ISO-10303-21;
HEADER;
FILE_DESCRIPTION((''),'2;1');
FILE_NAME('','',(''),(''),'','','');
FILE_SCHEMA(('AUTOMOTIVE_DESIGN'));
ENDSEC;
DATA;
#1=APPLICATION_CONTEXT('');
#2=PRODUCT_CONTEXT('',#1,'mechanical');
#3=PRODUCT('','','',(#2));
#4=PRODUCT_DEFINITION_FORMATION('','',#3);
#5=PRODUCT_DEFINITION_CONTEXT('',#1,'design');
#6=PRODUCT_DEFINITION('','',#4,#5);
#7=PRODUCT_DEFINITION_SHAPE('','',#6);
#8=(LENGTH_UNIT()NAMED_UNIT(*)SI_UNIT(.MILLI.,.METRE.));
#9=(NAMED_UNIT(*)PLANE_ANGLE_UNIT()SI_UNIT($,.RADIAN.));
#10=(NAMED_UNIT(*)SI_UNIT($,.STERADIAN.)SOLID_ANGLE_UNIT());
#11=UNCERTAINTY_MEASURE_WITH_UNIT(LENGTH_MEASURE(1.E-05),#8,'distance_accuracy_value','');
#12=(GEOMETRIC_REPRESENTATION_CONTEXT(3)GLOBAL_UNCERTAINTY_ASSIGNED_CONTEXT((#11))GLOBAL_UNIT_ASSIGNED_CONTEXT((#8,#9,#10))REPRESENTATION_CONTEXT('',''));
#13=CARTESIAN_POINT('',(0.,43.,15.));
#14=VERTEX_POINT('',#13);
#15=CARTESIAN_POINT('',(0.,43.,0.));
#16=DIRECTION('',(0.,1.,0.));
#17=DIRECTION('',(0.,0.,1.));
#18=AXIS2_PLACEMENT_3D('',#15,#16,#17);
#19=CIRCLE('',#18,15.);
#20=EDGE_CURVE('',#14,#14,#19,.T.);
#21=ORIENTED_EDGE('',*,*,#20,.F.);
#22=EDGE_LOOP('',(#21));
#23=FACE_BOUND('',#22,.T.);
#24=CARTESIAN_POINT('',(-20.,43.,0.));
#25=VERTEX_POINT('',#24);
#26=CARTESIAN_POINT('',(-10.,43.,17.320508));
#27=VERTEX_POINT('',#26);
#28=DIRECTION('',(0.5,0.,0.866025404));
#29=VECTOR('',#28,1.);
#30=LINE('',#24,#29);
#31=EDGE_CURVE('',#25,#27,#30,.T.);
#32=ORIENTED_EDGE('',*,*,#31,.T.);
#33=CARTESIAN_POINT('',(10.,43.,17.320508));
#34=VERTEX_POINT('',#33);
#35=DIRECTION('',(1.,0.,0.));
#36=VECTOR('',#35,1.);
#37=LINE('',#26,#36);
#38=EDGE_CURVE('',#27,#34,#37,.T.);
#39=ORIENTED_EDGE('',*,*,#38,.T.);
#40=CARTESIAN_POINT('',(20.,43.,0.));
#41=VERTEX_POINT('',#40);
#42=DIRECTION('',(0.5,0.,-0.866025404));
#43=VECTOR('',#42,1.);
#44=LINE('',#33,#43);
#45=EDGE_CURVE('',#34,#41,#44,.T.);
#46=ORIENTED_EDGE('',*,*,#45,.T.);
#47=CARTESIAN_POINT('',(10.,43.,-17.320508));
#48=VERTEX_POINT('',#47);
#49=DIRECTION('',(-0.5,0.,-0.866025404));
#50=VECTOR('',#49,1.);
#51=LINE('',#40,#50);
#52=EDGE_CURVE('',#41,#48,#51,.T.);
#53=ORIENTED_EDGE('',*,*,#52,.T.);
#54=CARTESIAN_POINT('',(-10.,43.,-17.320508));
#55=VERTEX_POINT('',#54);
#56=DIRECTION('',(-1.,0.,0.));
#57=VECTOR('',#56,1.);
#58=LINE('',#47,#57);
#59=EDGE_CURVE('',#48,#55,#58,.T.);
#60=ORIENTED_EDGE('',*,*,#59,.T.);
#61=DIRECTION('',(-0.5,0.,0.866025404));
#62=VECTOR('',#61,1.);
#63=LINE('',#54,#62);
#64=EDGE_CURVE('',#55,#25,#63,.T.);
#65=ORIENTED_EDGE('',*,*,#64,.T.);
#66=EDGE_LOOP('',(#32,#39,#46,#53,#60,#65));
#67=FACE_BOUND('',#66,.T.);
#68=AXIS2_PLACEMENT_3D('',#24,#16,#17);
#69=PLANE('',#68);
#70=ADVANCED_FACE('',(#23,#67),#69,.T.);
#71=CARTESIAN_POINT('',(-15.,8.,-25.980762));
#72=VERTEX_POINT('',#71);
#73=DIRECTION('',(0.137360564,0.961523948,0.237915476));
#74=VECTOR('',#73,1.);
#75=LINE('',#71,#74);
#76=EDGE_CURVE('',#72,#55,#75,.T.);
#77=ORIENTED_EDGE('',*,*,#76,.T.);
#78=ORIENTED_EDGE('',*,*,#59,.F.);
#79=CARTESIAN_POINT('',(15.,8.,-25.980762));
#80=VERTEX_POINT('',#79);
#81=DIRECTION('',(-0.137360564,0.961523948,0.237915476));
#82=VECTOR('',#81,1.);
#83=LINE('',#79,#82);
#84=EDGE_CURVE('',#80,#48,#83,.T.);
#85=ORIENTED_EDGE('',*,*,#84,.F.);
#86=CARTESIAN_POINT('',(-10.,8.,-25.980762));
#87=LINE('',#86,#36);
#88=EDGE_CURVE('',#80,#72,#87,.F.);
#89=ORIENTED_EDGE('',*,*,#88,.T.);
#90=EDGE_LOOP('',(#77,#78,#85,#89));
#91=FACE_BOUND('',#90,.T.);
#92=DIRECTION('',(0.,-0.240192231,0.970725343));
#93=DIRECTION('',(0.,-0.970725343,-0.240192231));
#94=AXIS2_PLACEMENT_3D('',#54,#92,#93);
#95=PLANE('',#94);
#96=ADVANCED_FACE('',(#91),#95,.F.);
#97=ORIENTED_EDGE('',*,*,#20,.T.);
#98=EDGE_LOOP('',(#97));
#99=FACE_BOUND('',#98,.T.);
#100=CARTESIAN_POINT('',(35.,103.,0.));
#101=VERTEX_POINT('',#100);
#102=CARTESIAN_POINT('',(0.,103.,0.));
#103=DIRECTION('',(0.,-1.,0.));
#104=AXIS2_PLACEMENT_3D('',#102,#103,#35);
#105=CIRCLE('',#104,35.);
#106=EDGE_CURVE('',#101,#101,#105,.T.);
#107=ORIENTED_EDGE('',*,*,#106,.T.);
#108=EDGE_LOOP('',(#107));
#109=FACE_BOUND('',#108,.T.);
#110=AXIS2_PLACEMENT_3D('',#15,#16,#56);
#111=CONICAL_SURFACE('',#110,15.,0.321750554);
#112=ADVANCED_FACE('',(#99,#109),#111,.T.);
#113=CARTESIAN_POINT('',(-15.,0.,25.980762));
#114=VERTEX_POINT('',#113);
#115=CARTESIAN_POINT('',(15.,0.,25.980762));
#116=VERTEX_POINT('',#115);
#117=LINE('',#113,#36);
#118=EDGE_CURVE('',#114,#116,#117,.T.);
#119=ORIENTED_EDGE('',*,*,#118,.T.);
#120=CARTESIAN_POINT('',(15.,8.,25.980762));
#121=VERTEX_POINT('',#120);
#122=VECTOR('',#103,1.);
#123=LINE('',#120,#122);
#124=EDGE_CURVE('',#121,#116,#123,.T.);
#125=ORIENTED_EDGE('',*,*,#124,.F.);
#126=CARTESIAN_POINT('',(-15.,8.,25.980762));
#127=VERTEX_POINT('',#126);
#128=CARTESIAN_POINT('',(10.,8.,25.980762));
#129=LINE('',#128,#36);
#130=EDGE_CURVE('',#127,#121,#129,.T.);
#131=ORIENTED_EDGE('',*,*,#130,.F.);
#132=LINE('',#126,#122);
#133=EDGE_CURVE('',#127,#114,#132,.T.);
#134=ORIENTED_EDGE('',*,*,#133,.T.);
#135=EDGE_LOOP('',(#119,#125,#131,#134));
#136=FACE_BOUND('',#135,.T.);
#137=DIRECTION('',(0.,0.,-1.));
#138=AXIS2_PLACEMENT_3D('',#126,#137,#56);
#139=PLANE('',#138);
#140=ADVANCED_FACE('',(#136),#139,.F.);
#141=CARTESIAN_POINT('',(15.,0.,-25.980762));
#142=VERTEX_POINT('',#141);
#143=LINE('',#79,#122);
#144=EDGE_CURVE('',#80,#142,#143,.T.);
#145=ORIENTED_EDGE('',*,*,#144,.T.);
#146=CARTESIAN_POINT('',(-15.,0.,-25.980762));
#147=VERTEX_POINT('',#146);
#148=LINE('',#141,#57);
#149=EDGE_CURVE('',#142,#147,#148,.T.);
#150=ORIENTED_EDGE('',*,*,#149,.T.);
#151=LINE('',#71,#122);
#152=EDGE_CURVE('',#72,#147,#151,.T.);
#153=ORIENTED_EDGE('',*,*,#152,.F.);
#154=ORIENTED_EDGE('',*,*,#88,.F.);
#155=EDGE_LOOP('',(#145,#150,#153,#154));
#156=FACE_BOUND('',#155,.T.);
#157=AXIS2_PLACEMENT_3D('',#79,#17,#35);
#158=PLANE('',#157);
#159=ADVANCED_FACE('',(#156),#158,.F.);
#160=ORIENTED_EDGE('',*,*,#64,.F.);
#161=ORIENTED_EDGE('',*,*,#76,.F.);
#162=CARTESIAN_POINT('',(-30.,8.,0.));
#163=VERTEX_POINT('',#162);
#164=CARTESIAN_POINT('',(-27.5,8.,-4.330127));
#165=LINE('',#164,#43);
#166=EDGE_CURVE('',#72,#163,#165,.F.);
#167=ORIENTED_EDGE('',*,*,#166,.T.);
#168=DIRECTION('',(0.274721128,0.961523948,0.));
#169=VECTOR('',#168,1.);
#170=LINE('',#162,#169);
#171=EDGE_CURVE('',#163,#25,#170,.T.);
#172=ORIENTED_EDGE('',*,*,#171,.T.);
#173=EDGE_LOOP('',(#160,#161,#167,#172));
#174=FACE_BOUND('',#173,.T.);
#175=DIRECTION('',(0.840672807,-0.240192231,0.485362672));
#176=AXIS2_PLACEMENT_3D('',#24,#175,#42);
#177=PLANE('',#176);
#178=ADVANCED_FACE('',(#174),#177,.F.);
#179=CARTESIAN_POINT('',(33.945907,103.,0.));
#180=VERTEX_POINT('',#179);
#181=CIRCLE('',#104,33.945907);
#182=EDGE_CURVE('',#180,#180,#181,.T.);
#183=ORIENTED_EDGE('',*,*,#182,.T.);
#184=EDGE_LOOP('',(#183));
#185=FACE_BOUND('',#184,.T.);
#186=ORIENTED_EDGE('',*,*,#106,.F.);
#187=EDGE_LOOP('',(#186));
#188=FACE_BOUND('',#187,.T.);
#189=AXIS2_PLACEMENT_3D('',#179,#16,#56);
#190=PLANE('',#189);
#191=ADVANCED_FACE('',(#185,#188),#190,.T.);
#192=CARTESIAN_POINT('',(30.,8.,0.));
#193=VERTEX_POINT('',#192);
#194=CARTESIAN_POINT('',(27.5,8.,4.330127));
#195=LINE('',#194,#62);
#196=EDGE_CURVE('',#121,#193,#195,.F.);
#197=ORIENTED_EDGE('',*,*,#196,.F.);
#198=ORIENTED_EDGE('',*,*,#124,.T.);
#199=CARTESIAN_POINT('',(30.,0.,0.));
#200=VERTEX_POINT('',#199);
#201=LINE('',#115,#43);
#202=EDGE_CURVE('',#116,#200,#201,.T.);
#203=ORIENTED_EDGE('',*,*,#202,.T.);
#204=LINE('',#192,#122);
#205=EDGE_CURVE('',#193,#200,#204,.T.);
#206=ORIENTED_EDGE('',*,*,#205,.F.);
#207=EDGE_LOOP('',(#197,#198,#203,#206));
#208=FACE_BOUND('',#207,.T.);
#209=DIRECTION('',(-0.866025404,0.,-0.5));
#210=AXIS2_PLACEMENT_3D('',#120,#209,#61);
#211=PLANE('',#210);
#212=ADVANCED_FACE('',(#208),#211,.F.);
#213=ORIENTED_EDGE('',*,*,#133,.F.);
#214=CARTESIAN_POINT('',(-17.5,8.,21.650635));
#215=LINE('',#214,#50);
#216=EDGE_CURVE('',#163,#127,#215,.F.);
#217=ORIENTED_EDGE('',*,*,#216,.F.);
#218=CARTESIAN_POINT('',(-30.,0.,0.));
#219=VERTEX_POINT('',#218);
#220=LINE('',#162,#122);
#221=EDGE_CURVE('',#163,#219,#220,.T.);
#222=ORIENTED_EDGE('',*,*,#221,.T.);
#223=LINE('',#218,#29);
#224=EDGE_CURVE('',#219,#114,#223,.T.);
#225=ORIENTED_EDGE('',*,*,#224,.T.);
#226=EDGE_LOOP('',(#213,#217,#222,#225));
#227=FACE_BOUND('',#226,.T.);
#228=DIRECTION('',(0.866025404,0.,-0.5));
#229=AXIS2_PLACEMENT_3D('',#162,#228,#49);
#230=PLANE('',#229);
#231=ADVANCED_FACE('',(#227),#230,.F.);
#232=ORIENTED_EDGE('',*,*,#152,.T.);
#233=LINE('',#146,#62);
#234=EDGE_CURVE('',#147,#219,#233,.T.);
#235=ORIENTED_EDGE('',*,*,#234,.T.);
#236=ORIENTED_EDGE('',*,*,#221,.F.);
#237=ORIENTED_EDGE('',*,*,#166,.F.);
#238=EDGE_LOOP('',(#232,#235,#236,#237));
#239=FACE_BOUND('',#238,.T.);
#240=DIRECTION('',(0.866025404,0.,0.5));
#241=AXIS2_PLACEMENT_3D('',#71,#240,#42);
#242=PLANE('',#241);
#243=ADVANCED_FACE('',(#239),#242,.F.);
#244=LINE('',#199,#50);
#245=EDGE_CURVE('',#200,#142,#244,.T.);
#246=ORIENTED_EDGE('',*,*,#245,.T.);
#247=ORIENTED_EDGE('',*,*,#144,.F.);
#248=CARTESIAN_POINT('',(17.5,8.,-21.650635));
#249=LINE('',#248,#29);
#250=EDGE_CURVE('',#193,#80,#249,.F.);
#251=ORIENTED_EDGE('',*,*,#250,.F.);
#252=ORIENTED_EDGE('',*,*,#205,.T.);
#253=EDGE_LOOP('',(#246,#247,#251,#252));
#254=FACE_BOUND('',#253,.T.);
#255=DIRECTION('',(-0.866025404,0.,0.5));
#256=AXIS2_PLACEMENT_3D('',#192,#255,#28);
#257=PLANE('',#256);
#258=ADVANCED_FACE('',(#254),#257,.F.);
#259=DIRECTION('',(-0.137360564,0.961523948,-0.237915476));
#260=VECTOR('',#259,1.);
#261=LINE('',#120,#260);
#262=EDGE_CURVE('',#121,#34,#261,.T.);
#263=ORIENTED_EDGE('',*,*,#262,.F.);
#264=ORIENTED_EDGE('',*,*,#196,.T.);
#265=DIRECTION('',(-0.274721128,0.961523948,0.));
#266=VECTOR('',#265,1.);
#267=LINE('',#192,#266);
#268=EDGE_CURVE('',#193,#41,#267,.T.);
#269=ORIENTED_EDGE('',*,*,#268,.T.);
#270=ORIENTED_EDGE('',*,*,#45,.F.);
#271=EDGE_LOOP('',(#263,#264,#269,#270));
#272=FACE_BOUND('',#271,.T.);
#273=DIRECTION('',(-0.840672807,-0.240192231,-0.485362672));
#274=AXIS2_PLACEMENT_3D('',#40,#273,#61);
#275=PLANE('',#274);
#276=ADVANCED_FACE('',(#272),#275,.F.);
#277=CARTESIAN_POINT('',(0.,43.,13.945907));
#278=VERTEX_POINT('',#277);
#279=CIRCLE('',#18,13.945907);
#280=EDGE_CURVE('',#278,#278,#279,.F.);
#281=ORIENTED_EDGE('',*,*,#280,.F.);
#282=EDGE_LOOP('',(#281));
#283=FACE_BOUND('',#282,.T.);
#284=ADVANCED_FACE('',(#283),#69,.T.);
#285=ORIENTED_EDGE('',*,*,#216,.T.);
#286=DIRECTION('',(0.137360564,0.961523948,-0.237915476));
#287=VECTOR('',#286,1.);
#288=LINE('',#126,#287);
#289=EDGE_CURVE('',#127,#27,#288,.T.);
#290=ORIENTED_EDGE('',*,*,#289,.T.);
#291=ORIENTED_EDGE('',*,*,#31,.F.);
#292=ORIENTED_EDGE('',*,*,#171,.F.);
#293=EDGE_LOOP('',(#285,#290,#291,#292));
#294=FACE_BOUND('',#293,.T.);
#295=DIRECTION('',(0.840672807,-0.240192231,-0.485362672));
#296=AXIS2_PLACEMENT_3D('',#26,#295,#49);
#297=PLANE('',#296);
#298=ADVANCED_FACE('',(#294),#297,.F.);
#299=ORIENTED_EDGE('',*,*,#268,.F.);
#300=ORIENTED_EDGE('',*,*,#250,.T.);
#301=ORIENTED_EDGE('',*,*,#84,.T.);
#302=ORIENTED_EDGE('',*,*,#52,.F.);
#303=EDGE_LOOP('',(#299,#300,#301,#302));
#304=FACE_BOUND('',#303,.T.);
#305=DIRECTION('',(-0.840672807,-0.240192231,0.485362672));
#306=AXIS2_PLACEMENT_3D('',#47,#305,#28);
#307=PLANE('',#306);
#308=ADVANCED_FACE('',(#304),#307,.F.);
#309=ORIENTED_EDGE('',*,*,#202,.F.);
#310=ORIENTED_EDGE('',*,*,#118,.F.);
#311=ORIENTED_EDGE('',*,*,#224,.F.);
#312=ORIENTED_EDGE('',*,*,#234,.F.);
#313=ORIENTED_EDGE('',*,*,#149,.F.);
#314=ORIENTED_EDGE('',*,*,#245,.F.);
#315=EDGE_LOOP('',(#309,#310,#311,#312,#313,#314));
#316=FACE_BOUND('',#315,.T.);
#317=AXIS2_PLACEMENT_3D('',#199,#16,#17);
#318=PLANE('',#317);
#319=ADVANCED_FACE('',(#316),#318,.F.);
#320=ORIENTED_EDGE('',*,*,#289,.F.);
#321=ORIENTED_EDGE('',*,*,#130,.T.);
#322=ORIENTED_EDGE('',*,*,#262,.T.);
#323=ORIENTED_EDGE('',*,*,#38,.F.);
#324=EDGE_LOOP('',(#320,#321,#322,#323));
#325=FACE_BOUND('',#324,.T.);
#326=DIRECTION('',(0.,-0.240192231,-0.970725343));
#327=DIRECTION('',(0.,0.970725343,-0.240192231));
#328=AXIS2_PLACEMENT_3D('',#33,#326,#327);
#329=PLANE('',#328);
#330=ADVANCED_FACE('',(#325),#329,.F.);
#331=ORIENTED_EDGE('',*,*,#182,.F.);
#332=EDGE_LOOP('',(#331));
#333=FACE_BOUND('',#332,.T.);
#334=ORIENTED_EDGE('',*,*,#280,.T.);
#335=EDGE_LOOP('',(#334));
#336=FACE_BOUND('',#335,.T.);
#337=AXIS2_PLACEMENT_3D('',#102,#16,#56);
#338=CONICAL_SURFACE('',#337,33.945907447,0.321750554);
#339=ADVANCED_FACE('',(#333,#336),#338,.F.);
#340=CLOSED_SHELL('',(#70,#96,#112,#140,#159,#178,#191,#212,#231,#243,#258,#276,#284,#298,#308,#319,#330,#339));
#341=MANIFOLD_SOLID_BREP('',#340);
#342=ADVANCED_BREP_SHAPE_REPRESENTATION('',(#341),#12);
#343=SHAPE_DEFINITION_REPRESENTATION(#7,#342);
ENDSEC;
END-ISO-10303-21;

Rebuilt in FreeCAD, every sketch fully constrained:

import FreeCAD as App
import Part
import Sketcher
from FreeCAD import Vector
Q = App.Units.Quantity


def add_polygon(sketch, points):
    """Adds a closed chain of lines whose ends are joined by coincident constraints."""
    first, n = sketch.GeometryCount, len(points)
    for a, b in zip(points, points[1:] + points[:1]):
        sketch.addGeometry(Part.LineSegment(App.Vector(*a, 0), App.Vector(*b, 0)), False)
    for i in range(n):
        sketch.addConstraint(Sketcher.Constraint("Coincident", first + i, 2, first + (i + 1) % n, 1))

doc = App.newDocument("Part")
body = doc.addObject("PartDesign::Body", "Body")

# Sketch on XZ plane
sketch1 = body.newObject("Sketcher::SketchObject", "Sketch")
sketch1.AttachmentSupport = (doc.getObject("XZ_Plane"), [""])
sketch1.MapMode = "FlatFace"
add_polygon(sketch1, [(30, 0), (15, -26), (-15, -26), (-30, 0), (-15, 26), (15, 26)])  # lines 0-5
sketch1.addConstraint([
    Sketcher.Constraint("Horizontal", 1),
    Sketcher.Constraint("Horizontal", 4),
    Sketcher.Constraint("Symmetric", 0, 2, 3, 2, -1, 1),
    Sketcher.Constraint("Symmetric", 2, 2, 5, 2, -1, 1),
    Sketcher.Constraint("PointOnObject", 2, 2, -1),
    Sketcher.Constraint("Parallel", 2, 5),
    Sketcher.Constraint("Vertical", 1, 2, 3, 2),
    Sketcher.Constraint("DistanceX", 1, 2, 1, 1, 30.0),
    Sketcher.Constraint("Angle", 0, Q("-120 deg")),
    Sketcher.Constraint("Distance", 0, 30.0),
])
pad1 = body.newObject("PartDesign::Pad", "Pad")
pad1.Profile = sketch1
pad1.Length = 8
pad1.Reversed = True

# Sketch on XZ plane
sketch2 = body.newObject("Sketcher::SketchObject", "Sketch001")
sketch2.AttachmentSupport = (doc.getObject("XZ_Plane"), [""])
sketch2.MapMode = "FlatFace"
sketch2.AttachmentOffset = App.Placement(Vector(0, 0, -8), App.Rotation())
add_polygon(sketch2, [(30, 0), (15, -26), (-15, -26), (-30, 0), (-15, 26), (15, 26)])  # lines 0-5
sketch2.addConstraint([
    Sketcher.Constraint("Horizontal", 1),
    Sketcher.Constraint("Horizontal", 4),
    Sketcher.Constraint("Symmetric", 0, 2, 3, 2, -1, 1),
    Sketcher.Constraint("Symmetric", 2, 2, 5, 2, -1, 1),
    Sketcher.Constraint("PointOnObject", 2, 2, -1),
    Sketcher.Constraint("Parallel", 2, 5),
    Sketcher.Constraint("Vertical", 1, 2, 3, 2),
    Sketcher.Constraint("DistanceX", 1, 2, 1, 1, 30.0),
    Sketcher.Constraint("Angle", 0, Q("-120 deg")),
    Sketcher.Constraint("Distance", 0, 30.0),
])

# Sketch on XZ plane
sketch3 = body.newObject("Sketcher::SketchObject", "Sketch002")
sketch3.AttachmentSupport = (doc.getObject("XZ_Plane"), [""])
sketch3.MapMode = "FlatFace"
sketch3.AttachmentOffset = App.Placement(Vector(0, 0, -43), App.Rotation())
add_polygon(sketch3, [(-20, 0), (-10, 17), (10, 17), (20, 0), (10, -17), (-10, -17)])  # lines 0-5
sketch3.addConstraint([
    Sketcher.Constraint("Horizontal", 1),
    Sketcher.Constraint("Horizontal", 4),
    Sketcher.Constraint("Symmetric", 0, 2, 3, 2, -1, 1),
    Sketcher.Constraint("Symmetric", 2, 2, 5, 2, -1, 1),
    Sketcher.Constraint("PointOnObject", 2, 2, -1),
    Sketcher.Constraint("Parallel", 2, 5),
    Sketcher.Constraint("Vertical", 1, 2, 3, 2),
    Sketcher.Constraint("DistanceX", 1, 1, 1, 2, 20.0),
    Sketcher.Constraint("Angle", 0, Q("60 deg")),
    Sketcher.Constraint("Distance", 0, 20.0),
])

additiveloft = body.newObject("PartDesign::AdditiveLoft", "AdditiveLoft")
additiveloft.Profile = sketch2
additiveloft.Sections = [sketch3]

# Sketch on XY plane
sketch4 = body.newObject("Sketcher::SketchObject", "Sketch003")
sketch4.AttachmentSupport = (doc.getObject("XY_Plane"), [""])
sketch4.MapMode = "FlatFace"
add_polygon(sketch4, [(15, 43), (35, 103), (33.9, 103), (13.9, 43)])  # lines 0-3
sketch4.addConstraint([
    Sketcher.Constraint("Horizontal", 1),
    Sketcher.Constraint("Horizontal", 3),
    Sketcher.Constraint("Parallel", 0, 2),
    Sketcher.Constraint("DistanceX", -1, 1, 0, 2, 35.0),
    Sketcher.Constraint("DistanceY", -1, 1, 0, 2, 103.0),
    Sketcher.Constraint("DistanceY", -1, 1, 2, 2, 43.0),
    Sketcher.Constraint("DistanceX", -1, 1, 3, 2, 15.0),
    Sketcher.Constraint("DistanceX", 1, 2, 1, 1, 1.054093),
])
revolution = body.newObject("PartDesign::Revolution", "Revolution")
revolution.Profile = sketch4
revolution.ReferenceAxis = (sketch4, ["V_Axis"])
revolution.Angle = 360

doc.recompute()
